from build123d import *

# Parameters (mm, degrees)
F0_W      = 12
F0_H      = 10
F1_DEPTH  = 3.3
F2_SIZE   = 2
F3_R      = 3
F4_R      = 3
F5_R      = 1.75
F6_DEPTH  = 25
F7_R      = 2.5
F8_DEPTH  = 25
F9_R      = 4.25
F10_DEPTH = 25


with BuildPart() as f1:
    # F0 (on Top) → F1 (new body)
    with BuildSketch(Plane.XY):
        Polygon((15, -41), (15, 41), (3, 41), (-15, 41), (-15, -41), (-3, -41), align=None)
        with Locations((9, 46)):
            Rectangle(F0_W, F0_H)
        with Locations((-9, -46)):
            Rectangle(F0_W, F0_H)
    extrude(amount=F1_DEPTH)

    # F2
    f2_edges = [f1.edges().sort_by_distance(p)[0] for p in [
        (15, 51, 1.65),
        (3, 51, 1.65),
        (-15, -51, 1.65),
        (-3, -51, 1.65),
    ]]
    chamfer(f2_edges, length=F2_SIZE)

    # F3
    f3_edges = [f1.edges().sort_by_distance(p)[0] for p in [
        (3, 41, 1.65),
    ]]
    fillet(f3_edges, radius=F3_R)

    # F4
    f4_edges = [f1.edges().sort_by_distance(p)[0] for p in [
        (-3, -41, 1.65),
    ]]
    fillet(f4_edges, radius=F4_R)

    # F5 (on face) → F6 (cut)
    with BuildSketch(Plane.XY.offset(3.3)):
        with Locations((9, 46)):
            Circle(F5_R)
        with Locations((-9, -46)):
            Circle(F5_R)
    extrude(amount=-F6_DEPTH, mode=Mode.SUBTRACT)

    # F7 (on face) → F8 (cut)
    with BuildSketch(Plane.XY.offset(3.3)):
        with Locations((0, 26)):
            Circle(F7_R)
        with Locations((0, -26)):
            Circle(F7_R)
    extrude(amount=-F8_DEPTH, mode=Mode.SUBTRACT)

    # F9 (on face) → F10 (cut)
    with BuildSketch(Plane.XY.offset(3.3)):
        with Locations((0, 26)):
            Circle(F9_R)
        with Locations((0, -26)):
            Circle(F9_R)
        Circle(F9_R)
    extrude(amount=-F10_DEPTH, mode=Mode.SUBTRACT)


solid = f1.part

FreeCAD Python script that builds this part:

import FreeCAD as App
import Part
import Sketcher
from FreeCAD import Vector
Q = App.Units.Quantity


def edges_at(feature, points):
    """Names of the edges that pass closest to the given points."""
    edges = feature.Shape.Edges
    near = lambda p: min(range(len(edges)), key=lambda i: edges[i].distToShape(Part.Vertex(*p))[0])
    return sorted({f"Edge{near(p) + 1}" for p in points})

doc = App.newDocument("Part")
body = doc.addObject("PartDesign::Body", "Body")

# Sketch on XY plane
sketch1 = body.newObject("Sketcher::SketchObject", "Sketch")
sketch1.AttachmentSupport = (doc.getObject("XY_Plane"), [""])
sketch1.MapMode = "FlatFace"
sketch1.addGeometry([
    Part.LineSegment(Vector(15, -41, 0), Vector(15, 51, 0)),  # 0
    Part.LineSegment(Vector(15, 51, 0), Vector(3, 51, 0)),  # 1
    Part.LineSegment(Vector(3, 51, 0), Vector(3, 41, 0)),  # 2
    Part.LineSegment(Vector(3, 41, 0), Vector(-15, 41, 0)),  # 3
    Part.LineSegment(Vector(-15, 41, 0), Vector(-15, -51, 0)),  # 4
    Part.LineSegment(Vector(-15, -51, 0), Vector(-3, -51, 0)),  # 5
    Part.LineSegment(Vector(-3, -51, 0), Vector(-3, -41, 0)),  # 6
    Part.LineSegment(Vector(-3, -41, 0), Vector(15, -41, 0)),  # 7
], False)
sketch1.addConstraint([
    Sketcher.Constraint("Coincident", 0, 2, 1, 1),
    Sketcher.Constraint("Coincident", 1, 2, 2, 1),
    Sketcher.Constraint("Coincident", 2, 2, 3, 1),
    Sketcher.Constraint("Coincident", 3, 2, 4, 1),
    Sketcher.Constraint("Coincident", 4, 2, 5, 1),
    Sketcher.Constraint("Coincident", 5, 2, 6, 1),
    Sketcher.Constraint("Coincident", 6, 2, 7, 1),
    Sketcher.Constraint("Coincident", 7, 2, 0, 1),
    Sketcher.Constraint("Vertical", 0),
    Sketcher.Constraint("Horizontal", 1),
    Sketcher.Constraint("Vertical", 2),
    Sketcher.Constraint("Horizontal", 3),
    Sketcher.Constraint("Vertical", 4),
    Sketcher.Constraint("Horizontal", 5),
    Sketcher.Constraint("Vertical", 6),
    Sketcher.Constraint("Horizontal", 7),
    Sketcher.Constraint("Symmetric", 0, 2, 4, 2, -1, 1),
    Sketcher.Constraint("Symmetric", 2, 2, 6, 2, -1, 1),
    Sketcher.Constraint("DistanceX", 1, 2, 1, 1, Q("12 mm")),
    Sketcher.Constraint("DistanceX", 3, 2, 3, 1, Q("18 mm")),
    Sketcher.Constraint("DistanceY", 0, 1, 0, 2, Q("92 mm")),
    Sketcher.Constraint("DistanceY", 2, 2, 2, 1, Q("10 mm")),
])
pad1 = body.newObject("PartDesign::Pad", "Pad")
pad1.Profile = sketch1
pad1.Length = 3.3
doc.recompute()

chamfer = body.newObject("PartDesign::Chamfer", "Chamfer")
chamfer.Base = (pad1, edges_at(pad1, [
    (15, 51, 1.65),
    (3, 51, 1.65),
    (-15, -51, 1.65),
    (-3, -51, 1.65),
]))
chamfer.Size = 2
doc.recompute()

fillet = body.newObject("PartDesign::Fillet", "Fillet")
fillet.Base = (chamfer, edges_at(chamfer, [(3, 41, 1.65)]))
fillet.Radius = 3
doc.recompute()

fillet2 = body.newObject("PartDesign::Fillet", "Fillet001")
fillet2.Base = (fillet, edges_at(fillet, [(-3, -41, 1.65)]))
fillet2.Radius = 3

# Sketch on XY plane
sketch2 = body.newObject("Sketcher::SketchObject", "Sketch001")
sketch2.AttachmentSupport = (doc.getObject("XY_Plane"), [""])
sketch2.MapMode = "FlatFace"
sketch2.AttachmentOffset = App.Placement(Vector(0, 0, 3.3), App.Rotation())
sketch2.addGeometry([
    Part.Circle(Vector(9, 46, 0), Vector(0, 0, 1), 1.8),
    Part.Circle(Vector(-9, -46, 0), Vector(0, 0, 1), 1.8),
], False)
sketch2.addConstraint([
    Sketcher.Constraint("Equal", 0, 1),
    Sketcher.Constraint("Symmetric", 0, 3, 1, 3, -1, 1),
    Sketcher.Constraint("Diameter", 0, Q("3.5 mm")),
    Sketcher.Constraint("DistanceX", -1, 1, 0, 3, Q("9 mm")),
    Sketcher.Constraint("DistanceY", -1, 1, 0, 3, Q("46 mm")),
])
pocket1 = body.newObject("PartDesign::Pocket", "Pocket")
pocket1.Profile = sketch2
pocket1.Length = 25

# Sketch on XY plane
sketch3 = body.newObject("Sketcher::SketchObject", "Sketch002")
sketch3.AttachmentSupport = (doc.getObject("XY_Plane"), [""])
sketch3.MapMode = "FlatFace"
sketch3.AttachmentOffset = App.Placement(Vector(0, 0, 3.3), App.Rotation())
sketch3.addGeometry([
    Part.Circle(Vector(0, 26, 0), Vector(0, 0, 1), 2.5),
    Part.Circle(Vector(0, -26, 0), Vector(0, 0, 1), 2.5),
], False)
sketch3.addConstraint([
    Sketcher.Constraint("Equal", 0, 1),
    Sketcher.Constraint("Symmetric", 0, 3, 1, 3, -1, 1),
    Sketcher.Constraint("PointOnObject", 0, 3, -2),
    Sketcher.Constraint("Diameter", 0, Q("5 mm")),
    Sketcher.Constraint("DistanceY", -1, 1, 0, 3, Q("26 mm")),
])
pocket2 = body.newObject("PartDesign::Pocket", "Pocket001")
pocket2.Profile = sketch3
pocket2.Length = 25

# Sketch on XY plane
sketch4 = body.newObject("Sketcher::SketchObject", "Sketch003")
sketch4.AttachmentSupport = (doc.getObject("XY_Plane"), [""])
sketch4.MapMode = "FlatFace"
sketch4.AttachmentOffset = App.Placement(Vector(0, 0, 3.3), App.Rotation())
sketch4.addGeometry([
    Part.Circle(Vector(0, 26, 0), Vector(0, 0, 1), 4.2),
    Part.Circle(Vector(0, -26, 0), Vector(0, 0, 1), 4.2),
    Part.Circle(Vector(0, 0, 0), Vector(0, 0, 1), 4.2),
], False)
sketch4.addConstraint([
    Sketcher.Constraint("Coincident", 2, 3, -1, 1),
    Sketcher.Constraint("Equal", 0, 1),
    Sketcher.Constraint("Equal", 1, 2),
    Sketcher.Constraint("Symmetric", 0, 3, 1, 3, -1, 1),
    Sketcher.Constraint("PointOnObject", 0, 3, -2),
    Sketcher.Constraint("Diameter", 0, Q("8.5 mm")),
    Sketcher.Constraint("DistanceY", -1, 1, 0, 3, Q("26 mm")),
])
pocket3 = body.newObject("PartDesign::Pocket", "Pocket002")
pocket3.Profile = sketch4
pocket3.Length = 25

doc.recompute()
